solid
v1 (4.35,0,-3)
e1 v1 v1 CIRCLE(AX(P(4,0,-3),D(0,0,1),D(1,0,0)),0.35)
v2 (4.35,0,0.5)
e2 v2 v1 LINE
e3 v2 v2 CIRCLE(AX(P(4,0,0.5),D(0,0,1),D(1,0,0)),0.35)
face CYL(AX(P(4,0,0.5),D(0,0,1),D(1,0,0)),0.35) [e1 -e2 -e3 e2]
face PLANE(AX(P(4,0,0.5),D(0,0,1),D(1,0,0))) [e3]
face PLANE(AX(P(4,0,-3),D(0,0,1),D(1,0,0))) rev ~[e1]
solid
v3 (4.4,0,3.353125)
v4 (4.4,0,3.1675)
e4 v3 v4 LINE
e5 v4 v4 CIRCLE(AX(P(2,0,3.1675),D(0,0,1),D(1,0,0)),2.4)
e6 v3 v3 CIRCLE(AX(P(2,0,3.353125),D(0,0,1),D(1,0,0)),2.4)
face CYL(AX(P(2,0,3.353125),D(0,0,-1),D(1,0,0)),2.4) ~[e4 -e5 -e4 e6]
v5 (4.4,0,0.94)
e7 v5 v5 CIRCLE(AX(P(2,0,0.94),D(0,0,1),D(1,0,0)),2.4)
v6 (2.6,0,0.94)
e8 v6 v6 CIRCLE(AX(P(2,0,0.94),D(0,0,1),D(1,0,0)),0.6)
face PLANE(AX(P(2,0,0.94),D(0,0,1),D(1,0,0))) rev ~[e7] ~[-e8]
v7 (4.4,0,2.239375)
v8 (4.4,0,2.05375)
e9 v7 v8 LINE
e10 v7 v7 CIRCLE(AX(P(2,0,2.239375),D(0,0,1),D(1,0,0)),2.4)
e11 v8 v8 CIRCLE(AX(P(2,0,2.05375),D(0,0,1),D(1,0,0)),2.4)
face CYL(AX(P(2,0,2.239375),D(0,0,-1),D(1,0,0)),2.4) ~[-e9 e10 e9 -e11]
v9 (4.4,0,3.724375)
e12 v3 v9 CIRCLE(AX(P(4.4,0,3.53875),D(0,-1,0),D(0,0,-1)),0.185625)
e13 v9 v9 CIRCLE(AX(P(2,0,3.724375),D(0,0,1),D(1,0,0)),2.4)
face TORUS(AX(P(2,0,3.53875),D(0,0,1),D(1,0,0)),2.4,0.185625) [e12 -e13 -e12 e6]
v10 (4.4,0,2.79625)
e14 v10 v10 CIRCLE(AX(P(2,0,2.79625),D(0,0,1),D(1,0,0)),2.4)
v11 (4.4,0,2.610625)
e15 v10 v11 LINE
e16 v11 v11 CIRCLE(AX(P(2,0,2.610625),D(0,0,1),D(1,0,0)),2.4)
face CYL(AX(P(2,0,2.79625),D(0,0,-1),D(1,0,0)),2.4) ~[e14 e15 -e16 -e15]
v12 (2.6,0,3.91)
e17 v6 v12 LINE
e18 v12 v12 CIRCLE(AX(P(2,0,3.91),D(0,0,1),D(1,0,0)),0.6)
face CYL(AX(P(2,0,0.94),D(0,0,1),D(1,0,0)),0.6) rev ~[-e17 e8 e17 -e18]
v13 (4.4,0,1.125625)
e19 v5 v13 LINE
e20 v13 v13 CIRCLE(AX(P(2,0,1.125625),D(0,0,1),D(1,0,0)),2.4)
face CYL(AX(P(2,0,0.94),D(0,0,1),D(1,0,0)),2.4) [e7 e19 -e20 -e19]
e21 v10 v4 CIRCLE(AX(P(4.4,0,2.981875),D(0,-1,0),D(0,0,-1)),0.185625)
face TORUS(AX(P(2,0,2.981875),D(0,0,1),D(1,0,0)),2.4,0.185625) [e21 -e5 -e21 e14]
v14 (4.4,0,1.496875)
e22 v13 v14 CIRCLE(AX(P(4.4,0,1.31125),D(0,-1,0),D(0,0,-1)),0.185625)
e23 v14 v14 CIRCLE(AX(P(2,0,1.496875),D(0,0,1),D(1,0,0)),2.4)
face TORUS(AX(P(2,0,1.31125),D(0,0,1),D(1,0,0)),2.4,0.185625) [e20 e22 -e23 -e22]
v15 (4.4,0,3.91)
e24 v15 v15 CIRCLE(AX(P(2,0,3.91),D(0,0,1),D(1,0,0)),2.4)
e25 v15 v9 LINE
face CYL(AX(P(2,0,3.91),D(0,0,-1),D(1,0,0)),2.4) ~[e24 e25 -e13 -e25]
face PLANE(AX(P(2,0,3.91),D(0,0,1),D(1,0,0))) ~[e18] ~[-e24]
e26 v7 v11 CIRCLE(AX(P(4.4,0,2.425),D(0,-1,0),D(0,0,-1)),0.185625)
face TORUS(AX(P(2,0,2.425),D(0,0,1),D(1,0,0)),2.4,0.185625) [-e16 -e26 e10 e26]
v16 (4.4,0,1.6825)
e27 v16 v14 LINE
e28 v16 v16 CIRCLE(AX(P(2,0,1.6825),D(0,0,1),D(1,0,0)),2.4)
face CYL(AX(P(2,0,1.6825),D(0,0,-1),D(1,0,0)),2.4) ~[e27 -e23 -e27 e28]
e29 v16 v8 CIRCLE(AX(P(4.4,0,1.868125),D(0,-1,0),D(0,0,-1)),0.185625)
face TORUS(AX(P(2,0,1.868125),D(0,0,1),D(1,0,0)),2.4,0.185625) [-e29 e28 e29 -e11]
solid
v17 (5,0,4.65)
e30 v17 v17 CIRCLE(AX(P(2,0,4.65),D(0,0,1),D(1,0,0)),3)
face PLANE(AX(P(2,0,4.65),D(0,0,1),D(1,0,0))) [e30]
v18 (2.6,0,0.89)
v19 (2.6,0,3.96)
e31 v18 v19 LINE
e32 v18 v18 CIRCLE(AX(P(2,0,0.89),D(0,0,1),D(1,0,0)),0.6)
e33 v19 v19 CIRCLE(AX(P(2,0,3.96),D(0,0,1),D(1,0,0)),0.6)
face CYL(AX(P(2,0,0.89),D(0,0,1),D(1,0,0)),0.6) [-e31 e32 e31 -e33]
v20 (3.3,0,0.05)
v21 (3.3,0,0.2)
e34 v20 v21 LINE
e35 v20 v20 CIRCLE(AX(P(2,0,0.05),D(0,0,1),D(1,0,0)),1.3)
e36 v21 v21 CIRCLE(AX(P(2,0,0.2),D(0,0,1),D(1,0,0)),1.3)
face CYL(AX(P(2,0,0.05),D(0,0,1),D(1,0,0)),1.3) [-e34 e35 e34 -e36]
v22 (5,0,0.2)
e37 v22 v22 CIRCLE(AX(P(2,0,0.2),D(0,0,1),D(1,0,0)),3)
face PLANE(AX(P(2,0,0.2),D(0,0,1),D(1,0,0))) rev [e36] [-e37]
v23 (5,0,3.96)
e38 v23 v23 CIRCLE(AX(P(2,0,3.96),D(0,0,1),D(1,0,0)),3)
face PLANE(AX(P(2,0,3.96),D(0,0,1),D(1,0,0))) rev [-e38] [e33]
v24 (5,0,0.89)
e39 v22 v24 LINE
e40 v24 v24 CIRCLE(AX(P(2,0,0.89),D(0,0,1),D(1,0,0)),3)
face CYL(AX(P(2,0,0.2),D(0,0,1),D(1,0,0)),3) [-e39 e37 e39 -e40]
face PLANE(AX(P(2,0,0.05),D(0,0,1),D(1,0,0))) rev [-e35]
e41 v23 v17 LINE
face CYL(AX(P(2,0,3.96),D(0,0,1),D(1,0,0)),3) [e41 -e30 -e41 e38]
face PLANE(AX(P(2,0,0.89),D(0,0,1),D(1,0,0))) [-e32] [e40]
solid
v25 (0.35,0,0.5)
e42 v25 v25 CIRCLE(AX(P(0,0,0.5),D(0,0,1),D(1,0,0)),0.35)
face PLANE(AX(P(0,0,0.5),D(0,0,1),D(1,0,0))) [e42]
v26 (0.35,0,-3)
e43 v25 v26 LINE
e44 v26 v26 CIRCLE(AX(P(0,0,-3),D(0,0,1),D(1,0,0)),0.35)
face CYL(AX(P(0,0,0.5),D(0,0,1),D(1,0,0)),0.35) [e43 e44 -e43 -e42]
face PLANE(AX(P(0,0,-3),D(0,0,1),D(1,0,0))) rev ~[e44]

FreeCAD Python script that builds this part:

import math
import FreeCAD as App
import Part
import Sketcher
Q = App.Units.Quantity

doc = App.newDocument("Part")
body = doc.addObject("PartDesign::Body", "Body")
body.AllowCompound = True

# Sketch on XY plane
sketch1 = body.newObject("Sketcher::SketchObject", "Sketch")
sketch1.AttachmentSupport = (doc.getObject("XY_Plane"), [""])
sketch1.MapMode = "FlatFace"
sketch1.AttachmentOffset = App.Placement(App.Vector(0, 0, 0.5), App.Rotation())
sketch1.addGeometry([
    Part.Circle(App.Vector(0, 0, 0), App.Vector(0, 0, 1), 0.35),
    Part.Circle(App.Vector(4, 0, 0), App.Vector(0, 0, 1), 0.35),
], False)
sketch1.addConstraint([
    Sketcher.Constraint("Coincident", 0, 3, -1, 1),
    Sketcher.Constraint("Equal", 0, 1),
    Sketcher.Constraint("PointOnObject", 1, 3, -1),
    Sketcher.Constraint("Diameter", 0, Q("0.7 mm")),
    Sketcher.Constraint("DistanceX", -1, 1, 1, 3, Q("4 mm")),
])
pad1 = body.newObject("PartDesign::Pad", "Pad")
pad1.Profile = sketch1
pad1.Length = 3.5
pad1.Reversed = True
body2 = doc.addObject("PartDesign::Body", "Body001")

# Sketch on XZ plane
sketch2 = body2.newObject("Sketcher::SketchObject", "Sketch001")
sketch2.AttachmentSupport = (doc.getObject("XZ_Plane001"), [""])
sketch2.MapMode = "FlatFace"
sketch2.addGeometry([
    Part.LineSegment(App.Vector(2, 0.05, 0), App.Vector(3.3, 0.05, 0)),  # 0
    Part.LineSegment(App.Vector(3.3, 0.05, 0), App.Vector(3.3, 0.2, 0)),  # 1
    Part.LineSegment(App.Vector(3.3, 0.2, 0), App.Vector(5, 0.2, 0)),  # 2
    Part.LineSegment(App.Vector(5, 0.2, 0), App.Vector(5, 0.89, 0)),  # 3
    Part.LineSegment(App.Vector(5, 0.89, 0), App.Vector(2.6, 0.89, 0)),  # 4
    Part.LineSegment(App.Vector(2.6, 0.89, 0), App.Vector(2.6, 3.96, 0)),  # 5
    Part.LineSegment(App.Vector(2.6, 3.96, 0), App.Vector(5, 3.96, 0)),  # 6
    Part.LineSegment(App.Vector(5, 3.96, 0), App.Vector(5, 4.65, 0)),  # 7
    Part.LineSegment(App.Vector(5, 4.65, 0), App.Vector(2, 4.65, 0)),  # 8
    Part.LineSegment(App.Vector(2, 4.65, 0), App.Vector(2, 0.05, 0)),  # 9
], False)
sketch2.addGeometry(Part.LineSegment(App.Vector(2, 0.05, 0), App.Vector(2, 4.65, 0)), True)  # axis
sketch2.addConstraint([
    Sketcher.Constraint("Coincident", 0, 2, 1, 1),
    Sketcher.Constraint("Coincident", 1, 2, 2, 1),
    Sketcher.Constraint("Coincident", 2, 2, 3, 1),
    Sketcher.Constraint("Coincident", 3, 2, 4, 1),
    Sketcher.Constraint("Coincident", 4, 2, 5, 1),
    Sketcher.Constraint("Coincident", 5, 2, 6, 1),
    Sketcher.Constraint("Coincident", 6, 2, 7, 1),
    Sketcher.Constraint("Coincident", 7, 2, 8, 1),
    Sketcher.Constraint("Coincident", 8, 2, 9, 1),
    Sketcher.Constraint("Coincident", 9, 2, 0, 1),
    Sketcher.Constraint("Horizontal", 0),
    Sketcher.Constraint("Vertical", 1),
    Sketcher.Constraint("Horizontal", 2),
    Sketcher.Constraint("Vertical", 3),
    Sketcher.Constraint("Horizontal", 4),
    Sketcher.Constraint("Vertical", 5),
    Sketcher.Constraint("Horizontal", 6),
    Sketcher.Constraint("Vertical", 7),
    Sketcher.Constraint("Horizontal", 8),
    Sketcher.Constraint("Vertical", 9),
    Sketcher.Constraint("Vertical", 10),
    Sketcher.Constraint("Coincident", 10, 1, 9, 2),
    Sketcher.Constraint("Horizontal", 7, 2, 10, 2),
    Sketcher.Constraint("Vertical", 3, 2, 6, 2),
    Sketcher.Constraint("Equal", 3, 7),
    Sketcher.Constraint("DistanceX", 8, 2, 8, 1, Q("3 mm")),
    Sketcher.Constraint("DistanceX", 0, 1, 0, 2, Q("1.3 mm")),
    Sketcher.Constraint("DistanceX", 4, 2, 4, 1, Q("2.4 mm")),
    Sketcher.Constraint("DistanceY", 9, 2, 9, 1, Q("4.6 mm")),
    Sketcher.Constraint("DistanceX", -1, 1, 2, 2, Q("5 mm")),
    Sketcher.Constraint("DistanceY", 1, 1, 1, 2, Q("0.15 mm")),
    Sketcher.Constraint("DistanceY", 3, 1, 3, 2, Q("0.69 mm")),
    Sketcher.Constraint("DistanceY", -1, 1, 1, 2, Q("0.2 mm")),
])
revolution = body2.newObject("PartDesign::Revolution", "Revolution")
revolution.Profile = sketch2
revolution.ReferenceAxis = (sketch2, ["Axis0"])
revolution.Angle = 360
body3 = doc.addObject("PartDesign::Body", "Body002")

# Sketch on XZ plane
sketch3 = body3.newObject("Sketcher::SketchObject", "Sketch002")
sketch3.AttachmentSupport = (doc.getObject("XZ_Plane002"), [""])
sketch3.MapMode = "FlatFace"
sketch3.addGeometry([
    Part.LineSegment(App.Vector(2.6, 0.94, 0), App.Vector(4.4, 0.94, 0)),  # 0
    Part.LineSegment(App.Vector(4.4, 0.94, 0), App.Vector(4.4, 1.13, 0)),  # 1
    Part.ArcOfCircle(Part.Circle(App.Vector(4.4, 1.31, 0), App.Vector(0, 0, 1), 0.19), math.radians(-90), math.radians(90)),  # 2
    Part.LineSegment(App.Vector(4.4, 1.5, 0), App.Vector(4.4, 1.68, 0)),  # 3
    Part.ArcOfCircle(Part.Circle(App.Vector(4.4, 1.87, 0), App.Vector(0, 0, 1), 0.19), math.radians(-90), math.radians(90)),  # 4
    Part.LineSegment(App.Vector(4.4, 2.05, 0), App.Vector(4.4, 2.24, 0)),  # 5
    Part.ArcOfCircle(Part.Circle(App.Vector(4.4, 2.42, 0), App.Vector(0, 0, 1), 0.19), math.radians(-90), math.radians(90)),  # 6
    Part.LineSegment(App.Vector(4.4, 2.61, 0), App.Vector(4.4, 2.8, 0)),  # 7
    Part.ArcOfCircle(Part.Circle(App.Vector(4.4, 2.98, 0), App.Vector(0, 0, 1), 0.19), math.radians(-90), math.radians(90)),  # 8
    Part.LineSegment(App.Vector(4.4, 3.17, 0), App.Vector(4.4, 3.35, 0)),  # 9
    Part.ArcOfCircle(Part.Circle(App.Vector(4.4, 3.54, 0), App.Vector(0, 0, 1), 0.19), math.radians(-90), math.radians(90)),  # 10
    Part.LineSegment(App.Vector(4.4, 3.72, 0), App.Vector(4.4, 3.91, 0)),  # 11
    Part.LineSegment(App.Vector(4.4, 3.91, 0), App.Vector(2.6, 3.91, 0)),  # 12
    Part.LineSegment(App.Vector(2.6, 3.91, 0), App.Vector(2.6, 0.94, 0)),  # 13
], False)
sketch3.addGeometry(Part.LineSegment(App.Vector(2, 0.94, 0), App.Vector(2, 3.91, 0)), True)  # axis
sketch3.addConstraint([
    Sketcher.Constraint("Coincident", 0, 2, 1, 1),
    Sketcher.Constraint("Coincident", 1, 2, 2, 1),
    Sketcher.Constraint("Coincident", 2, 2, 3, 1),
    Sketcher.Constraint("Coincident", 3, 2, 4, 1),
    Sketcher.Constraint("Coincident", 4, 2, 5, 1),
    Sketcher.Constraint("Coincident", 5, 2, 6, 1),
    Sketcher.Constraint("Coincident", 6, 2, 7, 1),
    Sketcher.Constraint("Coincident", 7, 2, 8, 1),
    Sketcher.Constraint("Coincident", 8, 2, 9, 1),
    Sketcher.Constraint("Coincident", 9, 2, 10, 1),
    Sketcher.Constraint("Coincident", 10, 2, 11, 1),
    Sketcher.Constraint("Coincident", 11, 2, 12, 1),
    Sketcher.Constraint("Coincident", 12, 2, 13, 1),
    Sketcher.Constraint("Coincident", 13, 2, 0, 1),
    Sketcher.Constraint("Horizontal", 0),
    Sketcher.Constraint("Vertical", 1),
    Sketcher.Constraint("Vertical", 3),
    Sketcher.Constraint("Vertical", 5),
    Sketcher.Constraint("Vertical", 7),
    Sketcher.Constraint("Vertical", 9),
    Sketcher.Constraint("Vertical", 11),
    Sketcher.Constraint("Horizontal", 12),
    Sketcher.Constraint("Vertical", 13),
    Sketcher.Constraint("Vertical", 14),
    Sketcher.Constraint("Equal", 2, 4),
    Sketcher.Constraint("Equal", 4, 6),
    Sketcher.Constraint("Equal", 6, 8),
    Sketcher.Constraint("Equal", 8, 10),
    Sketcher.Constraint("Horizontal", 13, 2, 14, 1),
    Sketcher.Constraint("Horizontal", 12, 2, 14, 2),
    Sketcher.Constraint("Vertical", 2, 3, 4, 3),
    Sketcher.Constraint("Vertical", 4, 3, 6, 3),
    Sketcher.Constraint("Vertical", 6, 3, 8, 3),
    Sketcher.Constraint("Vertical", 8, 3, 10, 3),
    Sketcher.Constraint("Vertical", 10, 3, 0, 2),
    Sketcher.Constraint("Vertical", 1, 2, 2, 2),
    Sketcher.Constraint("Vertical", 3, 2, 4, 2),
    Sketcher.Constraint("Vertical", 5, 2, 6, 2),
    Sketcher.Constraint("Vertical", 7, 2, 8, 2),
    Sketcher.Constraint("Vertical", 9, 2, 10, 2),
    Sketcher.Constraint("Equal", 1, 3),
    Sketcher.Constraint("Equal", 3, 5),
    Sketcher.Constraint("Equal", 5, 7),
    Sketcher.Constraint("Equal", 7, 9),
    Sketcher.Constraint("Equal", 9, 11),
    Sketcher.Constraint("DistanceX", 0, 1, 0, 2, Q("1.8 mm")),
    Sketcher.Constraint("DistanceX", -1, 1, 14, 1, Q("2 mm")),
    Sketcher.Constraint("DistanceY", 13, 2, 13, 1, Q("2.97 mm")),
    Sketcher.Constraint("DistanceX", -1, 1, 2, 3, Q("4.4 mm")),
    Sketcher.Constraint("DistanceY", -1, 1, 0, 2, Q("0.94 mm")),
    Sketcher.Constraint("Radius", 2, Q("0.185625 mm")),
])
revolution2 = body3.newObject("PartDesign::Revolution", "Revolution001")
revolution2.Profile = sketch3
revolution2.ReferenceAxis = (sketch3, ["Axis0"])
revolution2.Angle = 360

doc.recompute()
